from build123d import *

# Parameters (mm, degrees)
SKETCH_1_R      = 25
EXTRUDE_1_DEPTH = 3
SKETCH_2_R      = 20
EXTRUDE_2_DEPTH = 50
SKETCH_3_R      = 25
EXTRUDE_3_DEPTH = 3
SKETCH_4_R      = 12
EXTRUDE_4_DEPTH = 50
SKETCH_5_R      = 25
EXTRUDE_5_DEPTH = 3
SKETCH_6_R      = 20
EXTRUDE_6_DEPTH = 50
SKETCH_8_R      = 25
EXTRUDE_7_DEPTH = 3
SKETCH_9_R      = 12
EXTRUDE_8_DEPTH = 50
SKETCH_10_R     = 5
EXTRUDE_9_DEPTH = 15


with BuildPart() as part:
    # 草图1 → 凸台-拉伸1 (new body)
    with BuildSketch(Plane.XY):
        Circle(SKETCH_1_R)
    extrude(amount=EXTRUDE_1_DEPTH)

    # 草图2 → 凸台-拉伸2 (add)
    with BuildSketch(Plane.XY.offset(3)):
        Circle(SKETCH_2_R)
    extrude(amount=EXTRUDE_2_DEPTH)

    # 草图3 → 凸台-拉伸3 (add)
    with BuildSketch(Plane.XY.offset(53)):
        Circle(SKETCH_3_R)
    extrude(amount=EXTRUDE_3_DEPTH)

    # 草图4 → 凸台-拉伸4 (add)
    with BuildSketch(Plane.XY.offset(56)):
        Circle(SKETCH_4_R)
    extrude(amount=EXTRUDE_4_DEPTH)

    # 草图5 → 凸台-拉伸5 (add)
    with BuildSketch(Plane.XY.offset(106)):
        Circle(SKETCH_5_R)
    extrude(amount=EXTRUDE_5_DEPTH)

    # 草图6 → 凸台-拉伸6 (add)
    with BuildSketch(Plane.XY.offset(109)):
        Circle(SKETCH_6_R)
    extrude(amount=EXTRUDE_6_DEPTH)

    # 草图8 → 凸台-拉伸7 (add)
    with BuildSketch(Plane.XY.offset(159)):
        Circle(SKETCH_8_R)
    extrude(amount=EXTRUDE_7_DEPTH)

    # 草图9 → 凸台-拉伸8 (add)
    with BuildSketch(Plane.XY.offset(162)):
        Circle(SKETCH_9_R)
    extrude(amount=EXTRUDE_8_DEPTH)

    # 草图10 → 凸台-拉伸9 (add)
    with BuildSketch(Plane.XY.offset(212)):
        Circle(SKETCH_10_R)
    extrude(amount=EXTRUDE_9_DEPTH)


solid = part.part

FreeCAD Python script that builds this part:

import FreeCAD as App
import Part
import Sketcher

V = App.Vector

doc = App.newDocument("Part")
body = doc.addObject("PartDesign::Body", "Body")

# Sketch on XY plane
sketch1 = body.newObject("Sketcher::SketchObject", "Sketch")
sketch1.AttachmentSupport = (doc.getObject("XY_Plane"), [""])
sketch1.MapMode = "FlatFace"
sketch1.addGeometry(Part.Circle(V(0, 0, 0), V(0, 0, 1), 25), False)
sketch1.addConstraint(Sketcher.Constraint("Coincident", 0, 3, -1, 1))
sketch1.addConstraint(Sketcher.Constraint("Diameter", 0, 50.0))
pad1 = body.newObject("PartDesign::Pad", "Pad")
pad1.Profile = sketch1
pad1.Length = 3

# Sketch on XY plane
sketch2 = body.newObject("Sketcher::SketchObject", "Sketch001")
sketch2.AttachmentSupport = (doc.getObject("XY_Plane"), [""])
sketch2.MapMode = "FlatFace"
sketch2.AttachmentOffset = App.Placement(V(0, 0, 3), App.Rotation())
sketch2.addGeometry(Part.Circle(V(0, 0, 0), V(0, 0, 1), 20), False)
sketch2.addConstraint(Sketcher.Constraint("Coincident", 0, 3, -1, 1))
sketch2.addConstraint(Sketcher.Constraint("Diameter", 0, 40.0))
pad2 = body.newObject("PartDesign::Pad", "Pad001")
pad2.Profile = sketch2
pad2.Length = 50

# Sketch on XY plane
sketch3 = body.newObject("Sketcher::SketchObject", "Sketch002")
sketch3.AttachmentSupport = (doc.getObject("XY_Plane"), [""])
sketch3.MapMode = "FlatFace"
sketch3.AttachmentOffset = App.Placement(V(0, 0, 53), App.Rotation())
sketch3.addGeometry(Part.Circle(V(0, 0, 0), V(0, 0, 1), 25), False)
sketch3.addConstraint(Sketcher.Constraint("Coincident", 0, 3, -1, 1))
sketch3.addConstraint(Sketcher.Constraint("Diameter", 0, 50.0))
pad3 = body.newObject("PartDesign::Pad", "Pad002")
pad3.Profile = sketch3
pad3.Length = 3

# Sketch on XY plane
sketch4 = body.newObject("Sketcher::SketchObject", "Sketch003")
sketch4.AttachmentSupport = (doc.getObject("XY_Plane"), [""])
sketch4.MapMode = "FlatFace"
sketch4.AttachmentOffset = App.Placement(V(0, 0, 56), App.Rotation())
sketch4.addGeometry(Part.Circle(V(0, 0, 0), V(0, 0, 1), 12), False)
sketch4.addConstraint(Sketcher.Constraint("Coincident", 0, 3, -1, 1))
sketch4.addConstraint(Sketcher.Constraint("Diameter", 0, 24.0))
pad4 = body.newObject("PartDesign::Pad", "Pad003")
pad4.Profile = sketch4
pad4.Length = 50

# Sketch on XY plane
sketch5 = body.newObject("Sketcher::SketchObject", "Sketch004")
sketch5.AttachmentSupport = (doc.getObject("XY_Plane"), [""])
sketch5.MapMode = "FlatFace"
sketch5.AttachmentOffset = App.Placement(V(0, 0, 106), App.Rotation())
sketch5.addGeometry(Part.Circle(V(0, 0, 0), V(0, 0, 1), 25), False)
sketch5.addConstraint(Sketcher.Constraint("Coincident", 0, 3, -1, 1))
sketch5.addConstraint(Sketcher.Constraint("Diameter", 0, 50.0))
pad5 = body.newObject("PartDesign::Pad", "Pad004")
pad5.Profile = sketch5
pad5.Length = 3

# Sketch on XY plane
sketch6 = body.newObject("Sketcher::SketchObject", "Sketch005")
sketch6.AttachmentSupport = (doc.getObject("XY_Plane"), [""])
sketch6.MapMode = "FlatFace"
sketch6.AttachmentOffset = App.Placement(V(0, 0, 109), App.Rotation())
sketch6.addGeometry(Part.Circle(V(0, 0, 0), V(0, 0, 1), 20), False)
sketch6.addConstraint(Sketcher.Constraint("Coincident", 0, 3, -1, 1))
sketch6.addConstraint(Sketcher.Constraint("Diameter", 0, 40.0))
pad6 = body.newObject("PartDesign::Pad", "Pad005")
pad6.Profile = sketch6
pad6.Length = 50

# Sketch on XY plane
sketch7 = body.newObject("Sketcher::SketchObject", "Sketch006")
sketch7.AttachmentSupport = (doc.getObject("XY_Plane"), [""])
sketch7.MapMode = "FlatFace"
sketch7.AttachmentOffset = App.Placement(V(0, 0, 159), App.Rotation())
sketch7.addGeometry(Part.Circle(V(0, 0, 0), V(0, 0, 1), 25), False)
sketch7.addConstraint(Sketcher.Constraint("Coincident", 0, 3, -1, 1))
sketch7.addConstraint(Sketcher.Constraint("Diameter", 0, 50.0))
pad7 = body.newObject("PartDesign::Pad", "Pad006")
pad7.Profile = sketch7
pad7.Length = 3

# Sketch on XY plane
sketch8 = body.newObject("Sketcher::SketchObject", "Sketch007")
sketch8.AttachmentSupport = (doc.getObject("XY_Plane"), [""])
sketch8.MapMode = "FlatFace"
sketch8.AttachmentOffset = App.Placement(V(0, 0, 162), App.Rotation())
sketch8.addGeometry(Part.Circle(V(0, 0, 0), V(0, 0, 1), 12), False)
sketch8.addConstraint(Sketcher.Constraint("Coincident", 0, 3, -1, 1))
sketch8.addConstraint(Sketcher.Constraint("Diameter", 0, 24.0))
pad8 = body.newObject("PartDesign::Pad", "Pad007")
pad8.Profile = sketch8
pad8.Length = 50

# Sketch on XY plane
sketch9 = body.newObject("Sketcher::SketchObject", "Sketch008")
sketch9.AttachmentSupport = (doc.getObject("XY_Plane"), [""])
sketch9.MapMode = "FlatFace"
sketch9.AttachmentOffset = App.Placement(V(0, 0, 212), App.Rotation())
sketch9.addGeometry(Part.Circle(V(0, 0, 0), V(0, 0, 1), 5), False)
sketch9.addConstraint(Sketcher.Constraint("Coincident", 0, 3, -1, 1))
sketch9.addConstraint(Sketcher.Constraint("Diameter", 0, 10.0))
pad9 = body.newObject("PartDesign::Pad", "Pad008")
pad9.Profile = sketch9
pad9.Length = 15

doc.recompute()
